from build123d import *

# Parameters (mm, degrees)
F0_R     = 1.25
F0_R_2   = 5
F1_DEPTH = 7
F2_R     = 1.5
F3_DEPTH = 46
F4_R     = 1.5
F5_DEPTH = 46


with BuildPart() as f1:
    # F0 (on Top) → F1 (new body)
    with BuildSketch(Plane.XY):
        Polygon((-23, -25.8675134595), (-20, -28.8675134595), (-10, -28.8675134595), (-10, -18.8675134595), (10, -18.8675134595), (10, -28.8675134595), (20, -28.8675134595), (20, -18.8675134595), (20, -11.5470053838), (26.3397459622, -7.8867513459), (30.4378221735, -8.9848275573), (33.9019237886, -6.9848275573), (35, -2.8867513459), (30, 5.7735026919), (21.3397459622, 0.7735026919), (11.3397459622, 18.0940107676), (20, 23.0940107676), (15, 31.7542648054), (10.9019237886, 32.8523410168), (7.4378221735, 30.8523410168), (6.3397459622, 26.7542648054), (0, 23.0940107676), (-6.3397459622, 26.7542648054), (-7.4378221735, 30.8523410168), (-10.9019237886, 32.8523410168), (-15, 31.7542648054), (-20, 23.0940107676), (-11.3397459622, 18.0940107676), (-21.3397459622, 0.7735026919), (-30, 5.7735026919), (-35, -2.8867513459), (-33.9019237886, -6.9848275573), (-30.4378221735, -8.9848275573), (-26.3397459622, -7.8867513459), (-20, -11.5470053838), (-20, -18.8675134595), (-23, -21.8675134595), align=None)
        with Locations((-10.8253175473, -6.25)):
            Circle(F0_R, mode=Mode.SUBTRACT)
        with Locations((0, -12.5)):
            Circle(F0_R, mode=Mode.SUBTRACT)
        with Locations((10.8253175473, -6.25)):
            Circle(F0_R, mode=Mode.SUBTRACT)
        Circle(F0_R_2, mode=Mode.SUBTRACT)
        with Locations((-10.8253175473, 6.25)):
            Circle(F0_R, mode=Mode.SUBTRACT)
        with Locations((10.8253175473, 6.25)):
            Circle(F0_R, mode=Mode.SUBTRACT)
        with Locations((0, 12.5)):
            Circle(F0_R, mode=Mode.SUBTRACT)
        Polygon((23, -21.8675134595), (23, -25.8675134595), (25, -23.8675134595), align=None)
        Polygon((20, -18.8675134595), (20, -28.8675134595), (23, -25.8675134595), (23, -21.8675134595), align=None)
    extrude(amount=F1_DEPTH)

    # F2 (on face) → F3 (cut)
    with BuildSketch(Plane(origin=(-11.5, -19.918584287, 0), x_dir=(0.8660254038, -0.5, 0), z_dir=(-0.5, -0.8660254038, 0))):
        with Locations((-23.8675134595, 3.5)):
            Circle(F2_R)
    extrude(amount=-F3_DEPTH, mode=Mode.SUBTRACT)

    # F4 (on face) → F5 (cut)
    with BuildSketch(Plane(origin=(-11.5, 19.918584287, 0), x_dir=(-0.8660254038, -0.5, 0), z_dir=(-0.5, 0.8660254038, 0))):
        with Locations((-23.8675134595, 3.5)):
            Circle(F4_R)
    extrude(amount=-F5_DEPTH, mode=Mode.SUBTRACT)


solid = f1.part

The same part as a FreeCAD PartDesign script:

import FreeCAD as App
import Part
import Sketcher

V = App.Vector
Q = App.Units.Quantity

doc = App.newDocument("Part")
params = doc.addObject("Spreadsheet::Sheet", "Params")
for row, (alias, value) in enumerate([
    ("sketch1_diameter", "10 mm"),
    ("sketch1_diameter2", "2.5 mm"),
    ("sketch1_width", "10 mm"),
    ("sketch1_width2", "20 mm"),
    ("sketch1_height", "4 mm"),
    ("pad1_length", "7 mm"),
    ("sketch2_diameter", "3 mm"),
    ("pocket1_length", "46 mm"),
    ("sketch3_diameter", "3 mm"),
    ("pocket2_length", "46 mm"),
], start=1):
    params.set(f"A{row}", alias)
    params.set(f"B{row}", "=" + value)
    params.setAlias(f"B{row}", alias)

body = doc.addObject("PartDesign::Body", "Body")

# Sketch on XY plane
sketch1 = body.newObject("Sketcher::SketchObject", "Sketch")
sketch1.AttachmentSupport = (doc.getObject("XY_Plane"), [""])
sketch1.MapMode = "FlatFace"
sketch1.addGeometry(Part.LineSegment(V(-23, -25.9, 0), V(-20, -28.9, 0)), False)
sketch1.addGeometry(Part.LineSegment(V(-20, -28.9, 0), V(-10, -28.9, 0)), False)
sketch1.addGeometry(Part.LineSegment(V(-10, -28.9, 0), V(-10, -18.9, 0)), False)
sketch1.addGeometry(Part.LineSegment(V(-10, -18.9, 0), V(10, -18.9, 0)), False)
sketch1.addGeometry(Part.LineSegment(V(10, -18.9, 0), V(10, -28.9, 0)), False)
sketch1.addGeometry(Part.LineSegment(V(10, -28.9, 0), V(20, -28.9, 0)), False)
sketch1.addGeometry(Part.LineSegment(V(20, -28.9, 0), V(25, -23.9, 0)), False)
sketch1.addGeometry(Part.LineSegment(V(25, -23.9, 0), V(20, -18.9, 0)), False)
sketch1.addGeometry(Part.LineSegment(V(20, -18.9, 0), V(20, -11.5, 0)), False)
sketch1.addGeometry(Part.LineSegment(V(20, -11.5, 0), V(26.3, -7.9, 0)), False)
sketch1.addGeometry(Part.LineSegment(V(26.3, -7.9, 0), V(30.4, -9, 0)), False)
sketch1.addGeometry(Part.LineSegment(V(30.4, -9, 0), V(33.9, -7, 0)), False)
sketch1.addGeometry(Part.LineSegment(V(33.9, -7, 0), V(35, -2.9, 0)), False)
sketch1.addGeometry(Part.LineSegment(V(35, -2.9, 0), V(30, 5.8, 0)), False)
sketch1.addGeometry(Part.LineSegment(V(30, 5.8, 0), V(21.3, 0.8, 0)), False)
sketch1.addGeometry(Part.LineSegment(V(21.3, 0.8, 0), V(11.3, 18.1, 0)), False)
sketch1.addGeometry(Part.LineSegment(V(11.3, 18.1, 0), V(20, 23.1, 0)), False)
sketch1.addGeometry(Part.LineSegment(V(20, 23.1, 0), V(15, 31.8, 0)), False)
sketch1.addGeometry(Part.LineSegment(V(15, 31.8, 0), V(10.9, 32.9, 0)), False)
sketch1.addGeometry(Part.LineSegment(V(10.9, 32.9, 0), V(7.4, 30.9, 0)), False)
sketch1.addGeometry(Part.LineSegment(V(7.4, 30.9, 0), V(6.3, 26.8, 0)), False)
sketch1.addGeometry(Part.LineSegment(V(6.3, 26.8, 0), V(0, 23.1, 0)), False)
sketch1.addGeometry(Part.LineSegment(V(0, 23.1, 0), V(-6.3, 26.8, 0)), False)
sketch1.addGeometry(Part.LineSegment(V(-6.3, 26.8, 0), V(-7.4, 30.9, 0)), False)
sketch1.addGeometry(Part.LineSegment(V(-7.4, 30.9, 0), V(-10.9, 32.9, 0)), False)
sketch1.addGeometry(Part.LineSegment(V(-10.9, 32.9, 0), V(-15, 31.8, 0)), False)
sketch1.addGeometry(Part.LineSegment(V(-15, 31.8, 0), V(-20, 23.1, 0)), False)
sketch1.addGeometry(Part.LineSegment(V(-20, 23.1, 0), V(-11.3, 18.1, 0)), False)
sketch1.addGeometry(Part.LineSegment(V(-11.3, 18.1, 0), V(-21.3, 0.8, 0)), False)
sketch1.addGeometry(Part.LineSegment(V(-21.3, 0.8, 0), V(-30, 5.8, 0)), False)
sketch1.addGeometry(Part.LineSegment(V(-30, 5.8, 0), V(-35, -2.9, 0)), False)
sketch1.addGeometry(Part.LineSegment(V(-35, -2.9, 0), V(-33.9, -7, 0)), False)
sketch1.addGeometry(Part.LineSegment(V(-33.9, -7, 0), V(-30.4, -9, 0)), False)
sketch1.addGeometry(Part.LineSegment(V(-30.4, -9, 0), V(-26.3, -7.9, 0)), False)
sketch1.addGeometry(Part.LineSegment(V(-26.3, -7.9, 0), V(-20, -11.5, 0)), False)
sketch1.addGeometry(Part.LineSegment(V(-20, -11.5, 0), V(-20, -18.9, 0)), False)
sketch1.addGeometry(Part.LineSegment(V(-20, -18.9, 0), V(-23, -21.9, 0)), False)
sketch1.addGeometry(Part.LineSegment(V(-23, -21.9, 0), V(-23, -25.9, 0)), False)
sketch1.addGeometry(Part.Circle(V(-10.8, -6.2, 0), V(0, 0, 1), 1.2), False)
sketch1.addGeometry(Part.Circle(V(0, -12.5, 0), V(0, 0, 1), 1.2), False)
sketch1.addGeometry(Part.Circle(V(10.8, -6.2, 0), V(0, 0, 1), 1.2), False)
sketch1.addGeometry(Part.Circle(V(-10.8, 6.2, 0), V(0, 0, 1), 1.2), False)
sketch1.addGeometry(Part.Circle(V(0, 0, 0), V(0, 0, 1), 5), False)
sketch1.addGeometry(Part.Circle(V(10.8, 6.2, 0), V(0, 0, 1), 1.2), False)
sketch1.addGeometry(Part.Circle(V(0, 12.5, 0), V(0, 0, 1), 1.2), False)
sketch1.addConstraint(Sketcher.Constraint("Coincident", 0, 2, 1, 1))
sketch1.addConstraint(Sketcher.Constraint("Coincident", 1, 2, 2, 1))
sketch1.addConstraint(Sketcher.Constraint("Coincident", 2, 2, 3, 1))
sketch1.addConstraint(Sketcher.Constraint("Coincident", 3, 2, 4, 1))
sketch1.addConstraint(Sketcher.Constraint("Coincident", 4, 2, 5, 1))
sketch1.addConstraint(Sketcher.Constraint("Coincident", 5, 2, 6, 1))
sketch1.addConstraint(Sketcher.Constraint("Coincident", 6, 2, 7, 1))
sketch1.addConstraint(Sketcher.Constraint("Coincident", 7, 2, 8, 1))
sketch1.addConstraint(Sketcher.Constraint("Coincident", 8, 2, 9, 1))
sketch1.addConstraint(Sketcher.Constraint("Coincident", 9, 2, 10, 1))
sketch1.addConstraint(Sketcher.Constraint("Coincident", 10, 2, 11, 1))
sketch1.addConstraint(Sketcher.Constraint("Coincident", 11, 2, 12, 1))
sketch1.addConstraint(Sketcher.Constraint("Coincident", 12, 2, 13, 1))
sketch1.addConstraint(Sketcher.Constraint("Coincident", 13, 2, 14, 1))
sketch1.addConstraint(Sketcher.Constraint("Coincident", 14, 2, 15, 1))
sketch1.addConstraint(Sketcher.Constraint("Coincident", 15, 2, 16, 1))
sketch1.addConstraint(Sketcher.Constraint("Coincident", 16, 2, 17, 1))
sketch1.addConstraint(Sketcher.Constraint("Coincident", 17, 2, 18, 1))
sketch1.addConstraint(Sketcher.Constraint("Coincident", 18, 2, 19, 1))
sketch1.addConstraint(Sketcher.Constraint("Coincident", 19, 2, 20, 1))
sketch1.addConstraint(Sketcher.Constraint("Coincident", 20, 2, 21, 1))
sketch1.addConstraint(Sketcher.Constraint("Coincident", 21, 2, 22, 1))
sketch1.addConstraint(Sketcher.Constraint("Coincident", 22, 2, 23, 1))
sketch1.addConstraint(Sketcher.Constraint("Coincident", 23, 2, 24, 1))
sketch1.addConstraint(Sketcher.Constraint("Coincident", 24, 2, 25, 1))
sketch1.addConstraint(Sketcher.Constraint("Coincident", 25, 2, 26, 1))
sketch1.addConstraint(Sketcher.Constraint("Coincident", 26, 2, 27, 1))
sketch1.addConstraint(Sketcher.Constraint("Coincident", 27, 2, 28, 1))
sketch1.addConstraint(Sketcher.Constraint("Coincident", 28, 2, 29, 1))
sketch1.addConstraint(Sketcher.Constraint("Coincident", 29, 2, 30, 1))
sketch1.addConstraint(Sketcher.Constraint("Coincident", 30, 2, 31, 1))
sketch1.addConstraint(Sketcher.Constraint("Coincident", 31, 2, 32, 1))
sketch1.addConstraint(Sketcher.Constraint("Coincident", 32, 2, 33, 1))
sketch1.addConstraint(Sketcher.Constraint("Coincident", 33, 2, 34, 1))
sketch1.addConstraint(Sketcher.Constraint("Coincident", 34, 2, 35, 1))
sketch1.addConstraint(Sketcher.Constraint("Coincident", 35, 2, 36, 1))
sketch1.addConstraint(Sketcher.Constraint("Coincident", 36, 2, 37, 1))
sketch1.addConstraint(Sketcher.Constraint("Coincident", 37, 2, 0, 1))
sketch1.addConstraint(Sketcher.Constraint("Horizontal", 1))
sketch1.addConstraint(Sketcher.Constraint("Vertical", 2))
sketch1.addConstraint(Sketcher.Constraint("Horizontal", 3))
sketch1.addConstraint(Sketcher.Constraint("Vertical", 4))
sketch1.addConstraint(Sketcher.Constraint("Horizontal", 5))
sketch1.addConstraint(Sketcher.Constraint("Vertical", 8))
sketch1.addConstraint(Sketcher.Constraint("Vertical", 35))
sketch1.addConstraint(Sketcher.Constraint("Vertical", 37))
sketch1.addConstraint(Sketcher.Constraint("Coincident", 42, 3, -1, 1))
sketch1.addConstraint(Sketcher.Constraint("Equal", 38, 39))
sketch1.addConstraint(Sketcher.Constraint("Equal", 39, 40))
sketch1.addConstraint(Sketcher.Constraint("Equal", 40, 41))
sketch1.addConstraint(Sketcher.Constraint("Equal", 41, 43))
sketch1.addConstraint(Sketcher.Constraint("Equal", 43, 44))
sketch1.addConstraint(Sketcher.Constraint("Symmetric", 40, 3, 41, 3, -1, 1))
sketch1.addConstraint(Sketcher.Constraint("Symmetric", 38, 3, 43, 3, -1, 1))
sketch1.addConstraint(Sketcher.Constraint("Symmetric", 39, 3, 44, 3, -1, 1))
sketch1.addConstraint(Sketcher.Constraint("Symmetric", 38, 3, 40, 3, -2))
sketch1.addConstraint(Sketcher.Constraint("Symmetric", 1, 2, 4, 2, -2))
sketch1.addConstraint(Sketcher.Constraint("Symmetric", 20, 2, 22, 2, -2))
sketch1.addConstraint(Sketcher.Constraint("Symmetric", 19, 2, 23, 2, -2))
sketch1.addConstraint(Sketcher.Constraint("Symmetric", 18, 2, 24, 2, -2))
sketch1.addConstraint(Sketcher.Constraint("Symmetric", 17, 2, 25, 2, -2))
sketch1.addConstraint(Sketcher.Constraint("Symmetric", 16, 2, 26, 2, -2))
sketch1.addConstraint(Sketcher.Constraint("Symmetric", 15, 2, 27, 2, -2))
sketch1.addConstraint(Sketcher.Constraint("Symmetric", 14, 2, 28, 2, -2))
sketch1.addConstraint(Sketcher.Constraint("Symmetric", 13, 2, 29, 2, -2))
sketch1.addConstraint(Sketcher.Constraint("Symmetric", 12, 2, 30, 2, -2))
sketch1.addConstraint(Sketcher.Constraint("Symmetric", 11, 2, 31, 2, -2))
sketch1.addConstraint(Sketcher.Constraint("Symmetric", 10, 2, 32, 2, -2))
sketch1.addConstraint(Sketcher.Constraint("Symmetric", 9, 2, 33, 2, -2))
sketch1.addConstraint(Sketcher.Constraint("Symmetric", 8, 2, 34, 2, -2))
sketch1.addConstraint(Sketcher.Constraint("PointOnObject", 39, 3, -2))
sketch1.addConstraint(Sketcher.Constraint("PointOnObject", 21, 2, -2))
sketch1.addConstraint(Sketcher.Constraint("Perpendicular", 0, 6))
sketch1.addConstraint(Sketcher.Constraint("Perpendicular", 6, 7))
sketch1.addConstraint(Sketcher.Constraint("Parallel", 9, 11))
sketch1.addConstraint(Sketcher.Constraint("Perpendicular", 10, 12))
sketch1.addConstraint(Sketcher.Constraint("Perpendicular", 11, 13))
sketch1.addConstraint(Sketcher.Constraint("Perpendicular", 13, 14))
sketch1.addConstraint(Sketcher.Constraint("Perpendicular", 14, 15))
sketch1.addConstraint(Sketcher.Constraint("Perpendicular", 15, 16))
sketch1.addConstraint(Sketcher.Constraint("Perpendicular", 16, 17))
sketch1.addConstraint(Sketcher.Constraint("Perpendicular", 12, 18))
sketch1.addConstraint(Sketcher.Constraint("Perpendicular", 17, 19))
sketch1.addConstraint(Sketcher.Constraint("Perpendicular", 18, 20))
sketch1.addConstraint(Sketcher.Constraint("Parallel", 19, 21))
sketch1.addConstraint(Sketcher.Constraint("Perpendicular", 7, 36))
sketch1.addConstraint(Sketcher.Constraint("Horizontal", 3, 2, 7, 2))
sketch1.addConstraint(Sketcher.Constraint("Horizontal", 16, 2, 21, 2))
sketch1.addConstraint(Sketcher.Constraint("Horizontal", 7, 2, 35, 2))
sketch1.addConstraint(Sketcher.Constraint("Vertical", 5, 2, 7, 2))
sketch1.addConstraint(Sketcher.Constraint("Vertical", 8, 2, 16, 2))
sketch1.addConstraint(Sketcher.Constraint("Vertical", 0, 2, 26, 2))
sketch1.addConstraint(Sketcher.Constraint("Equal", 5, 2))
sketch1.addConstraint(Sketcher.Constraint("Equal", 6, 7))
sketch1.addConstraint(Sketcher.Constraint("Equal", 0, 10))
sketch1.addConstraint(Sketcher.Constraint("Equal", 10, 12))
sketch1.addConstraint(Sketcher.Constraint("Equal", 13, 14))
sketch1.addConstraint(Sketcher.Constraint("Equal", 14, 16))
sketch1.addConstraint(Sketcher.Constraint("Equal", 16, 17))
sketch1.addConstraint(Sketcher.Constraint("Equal", 12, 18))
sketch1.addConstraint(Sketcher.Constraint("Equal", 11, 19))
sketch1.addConstraint(Sketcher.Constraint("Equal", 18, 20))
sketch1.addConstraint(Sketcher.Constraint("Equal", 9, 21))
sketch1.addConstraint(Sketcher.Constraint("Diameter", 42, 10.0))
sketch1.addConstraint(Sketcher.Constraint("Diameter", 38, 2.5))
sketch1.addConstraint(Sketcher.Constraint("DistanceX", 1, 1, 1, 2, 10.0))
sketch1.addConstraint(Sketcher.Constraint("DistanceX", 3, 1, 3, 2, 20.0))
sketch1.addConstraint(Sketcher.Constraint("DistanceY", 37, 2, 37, 1, 4.0))
sketch1.addConstraint(Sketcher.Constraint("Angle", 9, Q("30 deg")))
sketch1.addConstraint(Sketcher.Constraint("Angle", 10, Q("-15 deg")))
sketch1.addConstraint(Sketcher.Constraint("Distance", 11, 4.0))
sketch1.addConstraint(Sketcher.Constraint("DistanceY", 39, 3, -1, 1, 12.5))
sketch1.addConstraint(Sketcher.Constraint("DistanceY", 38, 3, 41, 3, 12.5))
sketch1.addConstraint(Sketcher.Constraint("DistanceY", 8, 1, 8, 2, 7.320508))
sketch1.addConstraint(Sketcher.Constraint("DistanceY", 9, 2, -1, 1, 7.886751))
sketch1.addConstraint(Sketcher.Constraint("DistanceX", 40, 3, 9, 2, 15.514428))
sketch1.setExpression("Constraints[103]", "Params.sketch1_diameter")
sketch1.setExpression("Constraints[104]", "Params.sketch1_diameter2")
sketch1.setExpression("Constraints[105]", "Params.sketch1_width")
sketch1.setExpression("Constraints[106]", "Params.sketch1_width2")
sketch1.setExpression("Constraints[107]", "Params.sketch1_height")
pad1 = body.newObject("PartDesign::Pad", "Pad")
pad1.Profile = sketch1
pad1.setExpression("Length", "Params.pad1_length")

# Sketch on an angled plane
sketch2 = body.newObject("Sketcher::SketchObject", "Sketch001")
sketch2.Placement = App.Placement(V(-11.5, -19.918584, 0), App.Rotation(V(0.866025404, -0.5, 0), V(0, 0, 1), V(-0.5, -0.866025404, 0), "ZXY"))
sketch2.addGeometry(Part.Circle(V(-23.9, 3.5, 0), V(0, 0, 1), 1.5), False)
sketch2.addConstraint(Sketcher.Constraint("Diameter", 0, 3.0))
sketch2.addConstraint(Sketcher.Constraint("DistanceY", -1, 1, 0, 3, 3.5))
sketch2.addConstraint(Sketcher.Constraint("DistanceX", 0, 3, -1, 1, 23.867513))
sketch2.setExpression("Constraints[0]", "Params.sketch2_diameter")
pocket1 = body.newObject("PartDesign::Pocket", "Pocket")
pocket1.Profile = sketch2
pocket1.setExpression("Length", "Params.pocket1_length")

# Sketch on an angled plane
sketch3 = body.newObject("Sketcher::SketchObject", "Sketch002")
sketch3.Placement = App.Placement(V(-11.5, 19.918584, 0), App.Rotation(V(-0.866025404, -0.5, 0), V(0, 0, 1), V(-0.5, 0.866025404, 0), "ZXY"))
sketch3.addGeometry(Part.Circle(V(-23.9, 3.5, 0), V(0, 0, 1), 1.5), False)
sketch3.addConstraint(Sketcher.Constraint("Diameter", 0, 3.0))
sketch3.addConstraint(Sketcher.Constraint("DistanceY", -1, 1, 0, 3, 3.5))
sketch3.addConstraint(Sketcher.Constraint("DistanceX", 0, 3, -1, 1, 23.867513))
sketch3.setExpression("Constraints[0]", "Params.sketch3_diameter")
pocket2 = body.newObject("PartDesign::Pocket", "Pocket001")
pocket2.Profile = sketch3
pocket2.setExpression("Length", "Params.pocket2_length")

doc.recompute()
